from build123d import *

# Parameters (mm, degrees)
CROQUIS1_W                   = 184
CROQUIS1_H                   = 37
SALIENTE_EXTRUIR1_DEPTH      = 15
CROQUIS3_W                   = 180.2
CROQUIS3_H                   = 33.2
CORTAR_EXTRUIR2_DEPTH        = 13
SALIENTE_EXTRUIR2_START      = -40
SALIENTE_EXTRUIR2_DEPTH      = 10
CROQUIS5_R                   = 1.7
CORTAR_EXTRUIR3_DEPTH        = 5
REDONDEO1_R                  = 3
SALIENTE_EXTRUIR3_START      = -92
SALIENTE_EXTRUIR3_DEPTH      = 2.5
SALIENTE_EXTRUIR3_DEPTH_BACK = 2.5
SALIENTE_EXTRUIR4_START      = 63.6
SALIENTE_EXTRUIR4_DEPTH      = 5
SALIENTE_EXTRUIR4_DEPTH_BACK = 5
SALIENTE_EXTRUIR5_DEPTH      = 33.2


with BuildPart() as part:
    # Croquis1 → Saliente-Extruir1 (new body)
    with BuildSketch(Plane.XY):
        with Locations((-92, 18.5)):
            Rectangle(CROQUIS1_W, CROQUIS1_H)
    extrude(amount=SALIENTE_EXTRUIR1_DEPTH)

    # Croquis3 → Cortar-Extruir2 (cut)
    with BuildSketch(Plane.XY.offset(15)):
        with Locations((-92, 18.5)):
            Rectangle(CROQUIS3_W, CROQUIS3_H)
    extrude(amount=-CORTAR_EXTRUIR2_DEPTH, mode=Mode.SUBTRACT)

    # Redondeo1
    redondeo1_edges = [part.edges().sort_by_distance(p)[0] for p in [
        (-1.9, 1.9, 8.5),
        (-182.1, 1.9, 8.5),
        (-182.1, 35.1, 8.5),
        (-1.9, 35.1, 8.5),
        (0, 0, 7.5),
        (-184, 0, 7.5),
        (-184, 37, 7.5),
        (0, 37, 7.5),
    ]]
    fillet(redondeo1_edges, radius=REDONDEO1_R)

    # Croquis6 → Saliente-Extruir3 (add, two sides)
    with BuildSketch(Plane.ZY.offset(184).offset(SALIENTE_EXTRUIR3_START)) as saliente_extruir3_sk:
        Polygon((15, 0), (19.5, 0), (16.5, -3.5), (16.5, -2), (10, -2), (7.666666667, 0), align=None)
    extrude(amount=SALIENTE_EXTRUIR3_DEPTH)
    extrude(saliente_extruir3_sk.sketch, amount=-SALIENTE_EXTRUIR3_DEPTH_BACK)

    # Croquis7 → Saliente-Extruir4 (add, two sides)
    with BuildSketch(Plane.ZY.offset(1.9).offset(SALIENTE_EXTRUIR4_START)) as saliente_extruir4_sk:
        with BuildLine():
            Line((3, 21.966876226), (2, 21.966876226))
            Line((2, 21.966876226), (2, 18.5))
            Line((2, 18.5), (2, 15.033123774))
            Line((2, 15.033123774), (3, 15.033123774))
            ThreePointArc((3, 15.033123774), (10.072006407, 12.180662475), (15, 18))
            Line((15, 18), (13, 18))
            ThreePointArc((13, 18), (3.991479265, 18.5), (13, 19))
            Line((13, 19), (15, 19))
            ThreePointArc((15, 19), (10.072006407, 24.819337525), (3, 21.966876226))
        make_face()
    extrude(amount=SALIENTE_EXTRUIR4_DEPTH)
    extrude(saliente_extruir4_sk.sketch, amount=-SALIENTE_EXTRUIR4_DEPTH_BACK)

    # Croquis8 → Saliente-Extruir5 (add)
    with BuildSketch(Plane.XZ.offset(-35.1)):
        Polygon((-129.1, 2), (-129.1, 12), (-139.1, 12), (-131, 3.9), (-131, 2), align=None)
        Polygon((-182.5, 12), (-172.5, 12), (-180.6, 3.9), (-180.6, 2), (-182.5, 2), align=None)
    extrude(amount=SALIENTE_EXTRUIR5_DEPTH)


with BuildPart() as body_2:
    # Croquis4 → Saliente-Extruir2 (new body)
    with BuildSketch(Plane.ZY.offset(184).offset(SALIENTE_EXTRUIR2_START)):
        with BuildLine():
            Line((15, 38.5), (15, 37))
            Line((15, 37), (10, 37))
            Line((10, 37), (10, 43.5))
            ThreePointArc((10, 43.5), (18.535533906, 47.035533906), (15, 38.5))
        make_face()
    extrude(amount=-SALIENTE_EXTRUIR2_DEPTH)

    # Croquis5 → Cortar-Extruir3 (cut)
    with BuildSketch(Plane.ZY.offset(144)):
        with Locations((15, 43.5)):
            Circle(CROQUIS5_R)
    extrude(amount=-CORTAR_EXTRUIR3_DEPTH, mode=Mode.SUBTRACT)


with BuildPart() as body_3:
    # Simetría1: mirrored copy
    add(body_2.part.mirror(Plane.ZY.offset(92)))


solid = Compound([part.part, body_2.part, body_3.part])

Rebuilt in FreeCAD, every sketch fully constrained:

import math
import FreeCAD as App
import Part
import Sketcher


def edges_at(feature, points):
    """Names of the edges that pass closest to the given points."""
    edges = feature.Shape.Edges
    near = lambda p: min(range(len(edges)), key=lambda i: edges[i].distToShape(Part.Vertex(*p))[0])
    return sorted({f"Edge{near(p) + 1}" for p in points})

doc = App.newDocument("Part")
body = doc.addObject("PartDesign::Body", "Body")

# Sketch on XY plane
sketch1 = body.newObject("Sketcher::SketchObject", "Sketch")
sketch1.AttachmentSupport = (doc.getObject("XY_Plane"), [""])
sketch1.MapMode = "FlatFace"
sketch1.addGeometry([
    Part.LineSegment(App.Vector(-184, 37, 0), App.Vector(-184, 0, 0)),
    Part.LineSegment(App.Vector(-184, 0, 0), App.Vector(0, 0, 0)),
    Part.LineSegment(App.Vector(0, 0, 0), App.Vector(0, 37, 0)),
    Part.LineSegment(App.Vector(0, 37, 0), App.Vector(-184, 37, 0)),
], False)
sketch1.addConstraint([
    Sketcher.Constraint("Coincident", 0, 2, 1, 1),
    Sketcher.Constraint("Coincident", 1, 2, 2, 1),
    Sketcher.Constraint("Coincident", 2, 2, 3, 1),
    Sketcher.Constraint("Coincident", 3, 2, 0, 1),
    Sketcher.Constraint("Vertical", 0),
    Sketcher.Constraint("Horizontal", 1),
    Sketcher.Constraint("Vertical", 2),
    Sketcher.Constraint("Horizontal", 3),
    Sketcher.Constraint("Coincident", 1, 2, -1, 1),
    Sketcher.Constraint("DistanceX", 1, 1, 1, 2, 184.0),
    Sketcher.Constraint("DistanceY", 0, 2, 0, 1, 37.0),
])
pad1 = body.newObject("PartDesign::Pad", "Pad")
pad1.Profile = sketch1
pad1.Length = 15

# Sketch on XY plane
sketch2 = body.newObject("Sketcher::SketchObject", "Sketch001")
sketch2.AttachmentSupport = (doc.getObject("XY_Plane"), [""])
sketch2.MapMode = "FlatFace"
sketch2.AttachmentOffset = App.Placement(App.Vector(0, 0, 15), App.Rotation())
sketch2.addGeometry([
    Part.LineSegment(App.Vector(-182, 35, 0), App.Vector(-182, 2, 0)),
    Part.LineSegment(App.Vector(-182, 2, 0), App.Vector(-2, 2, 0)),
    Part.LineSegment(App.Vector(-2, 2, 0), App.Vector(-2, 35, 0)),
    Part.LineSegment(App.Vector(-2, 35, 0), App.Vector(-182, 35, 0)),
], False)
sketch2.addConstraint([
    Sketcher.Constraint("Coincident", 0, 2, 1, 1),
    Sketcher.Constraint("Coincident", 1, 2, 2, 1),
    Sketcher.Constraint("Coincident", 2, 2, 3, 1),
    Sketcher.Constraint("Coincident", 3, 2, 0, 1),
    Sketcher.Constraint("Vertical", 0),
    Sketcher.Constraint("Horizontal", 1),
    Sketcher.Constraint("Vertical", 2),
    Sketcher.Constraint("Horizontal", 3),
    Sketcher.Constraint("DistanceX", 1, 1, 1, 2, 180.2),
    Sketcher.Constraint("DistanceY", 0, 2, 0, 1, 33.2),
    Sketcher.Constraint("DistanceX", 0, 2, -1, 1, 182.1),
    Sketcher.Constraint("DistanceY", -1, 1, 0, 2, 1.9),
])
pocket1 = body.newObject("PartDesign::Pocket", "Pocket")
pocket1.Profile = sketch2
pocket1.Length = 13
doc.recompute()

fillet = body.newObject("PartDesign::Fillet", "Fillet")
fillet.Base = (pocket1, edges_at(pocket1, [
    (-1.9, 1.9, 8.5),
    (-182.1, 1.9, 8.5),
    (-182.1, 35.1, 8.5),
    (-1.9, 35.1, 8.5),
    (0, 0, 7.5),
    (-184, 0, 7.5),
    (-184, 37, 7.5),
    (0, 37, 7.5),
]))
fillet.Radius = 3

# Sketch on YZ plane
sketch3 = body.newObject("Sketcher::SketchObject", "Sketch002")
sketch3.AttachmentSupport = (doc.getObject("YZ_Plane"), [""])
sketch3.MapMode = "FlatFace"
sketch3.AttachmentOffset = App.Placement(App.Vector(0, 0, -92), App.Rotation())
sketch3.addGeometry([
    Part.LineSegment(App.Vector(0, 19.5, 0), App.Vector(0, 7.7, 0)),  # 0
    Part.LineSegment(App.Vector(0, 7.7, 0), App.Vector(-2, 10, 0)),  # 1
    Part.LineSegment(App.Vector(-2, 10, 0), App.Vector(-2, 16.5, 0)),  # 2
    Part.LineSegment(App.Vector(-2, 16.5, 0), App.Vector(-3.5, 16.5, 0)),  # 3
    Part.LineSegment(App.Vector(-3.5, 16.5, 0), App.Vector(0, 19.5, 0)),  # 4
], False)
sketch3.addConstraint([
    Sketcher.Constraint("Coincident", 0, 2, 1, 1),
    Sketcher.Constraint("Coincident", 1, 2, 2, 1),
    Sketcher.Constraint("Coincident", 2, 2, 3, 1),
    Sketcher.Constraint("Coincident", 3, 2, 4, 1),
    Sketcher.Constraint("Coincident", 4, 2, 0, 1),
    Sketcher.Constraint("Vertical", 0),
    Sketcher.Constraint("Vertical", 2),
    Sketcher.Constraint("Horizontal", 3),
    Sketcher.Constraint("PointOnObject", 0, 2, -2),
    Sketcher.Constraint("Perpendicular", 1, 4),
    Sketcher.Constraint("DistanceX", 3, 2, 3, 1, 1.5),
    Sketcher.Constraint("DistanceY", 2, 1, 2, 2, 6.5),
    Sketcher.Constraint("DistanceX", 1, 2, -1, 1, 2.0),
    Sketcher.Constraint("DistanceY", -1, 1, 1, 2, 10.0),
    Sketcher.Constraint("DistanceY", 2, 2, 4, 2, 3.0),
])
pad2 = body.newObject("PartDesign::Pad", "Pad001")
pad2.Profile = sketch3
pad2.Type = "TwoLengths"
pad2.Length = 2.5
pad2.Length2 = 2.5
pad2.Reversed = True

# Sketch on YZ plane
sketch4 = body.newObject("Sketcher::SketchObject", "Sketch003")
sketch4.AttachmentSupport = (doc.getObject("YZ_Plane"), [""])
sketch4.MapMode = "FlatFace"
sketch4.AttachmentOffset = App.Placement(App.Vector(0, 0, -65.5), App.Rotation())
sketch4.addGeometry([
    Part.LineSegment(App.Vector(22, 3, 0), App.Vector(22, 2, 0)),  # 0
    Part.LineSegment(App.Vector(22, 2, 0), App.Vector(15, 2, 0)),  # 1
    Part.LineSegment(App.Vector(15, 2, 0), App.Vector(15, 3, 0)),  # 2
    Part.ArcOfCircle(Part.Circle(App.Vector(18.5, 8.5, 0), App.Vector(0, 0, 1), 6.5), math.radians(94), math.radians(238)),  # 3
    Part.LineSegment(App.Vector(18, 15, 0), App.Vector(18, 13, 0)),  # 4
    Part.ArcOfCircle(Part.Circle(App.Vector(18.5, 8.5, 0), App.Vector(0, 0, 1), 4.5), math.radians(96), math.radians(444)),  # 5
    Part.LineSegment(App.Vector(19, 13, 0), App.Vector(19, 15, 0)),  # 6
    Part.ArcOfCircle(Part.Circle(App.Vector(18.5, 8.5, 0), App.Vector(0, 0, 1), 6.5), math.radians(-58), math.radians(86)),  # 7
], False)
sketch4.addConstraint([
    Sketcher.Constraint("Coincident", 0, 2, 1, 1),
    Sketcher.Constraint("Coincident", 1, 2, 2, 1),
    Sketcher.Constraint("Coincident", 2, 2, 3, 2),
    Sketcher.Constraint("Coincident", 3, 1, 4, 1),
    Sketcher.Constraint("Coincident", 4, 2, 5, 1),
    Sketcher.Constraint("Coincident", 5, 2, 6, 1),
    Sketcher.Constraint("Coincident", 6, 2, 7, 2),
    Sketcher.Constraint("Coincident", 7, 1, 0, 1),
    Sketcher.Constraint("Vertical", 0),
    Sketcher.Constraint("Horizontal", 1),
    Sketcher.Constraint("Vertical", 2),
    Sketcher.Constraint("Vertical", 4),
    Sketcher.Constraint("Vertical", 6),
    Sketcher.Constraint("Coincident", 5, 3, 3, 3),
    Sketcher.Constraint("Coincident", 7, 3, 3, 3),
    Sketcher.Constraint("Equal", 3, 7),
    Sketcher.Constraint("Horizontal", 4, 2, 5, 2),
    Sketcher.Constraint("Horizontal", 2, 2, 7, 1),
    Sketcher.Constraint("DistanceY", 0, 2, 0, 1, 1.0),
    Sketcher.Constraint("DistanceY", 4, 2, 4, 1, 2.0),
    Sketcher.Constraint("DistanceY", -1, 1, 0, 2, 2.0),
    Sketcher.Constraint("DistanceX", -1, 1, 3, 1, 18.0),
    Sketcher.Constraint("DistanceY", -1, 1, 3, 1, 15.0),
    Sketcher.Constraint("DistanceX", -1, 1, 5, 2, 19.0),
    Sketcher.Constraint("Radius", 3, 6.509615),
])
pad3 = body.newObject("PartDesign::Pad", "Pad002")
pad3.Profile = sketch4
pad3.Type = "TwoLengths"
pad3.Length = 5
pad3.Length2 = 5
pad3.Reversed = True

# Sketch on XZ plane
sketch5 = body.newObject("Sketcher::SketchObject", "Sketch004")
sketch5.AttachmentSupport = (doc.getObject("XZ_Plane"), [""])
sketch5.MapMode = "FlatFace"
sketch5.AttachmentOffset = App.Placement(App.Vector(0, 0, -35.1), App.Rotation())
sketch5.addGeometry([
    Part.LineSegment(App.Vector(-129.1, 2, 0), App.Vector(-129.1, 12, 0)),  # 0
    Part.LineSegment(App.Vector(-129.1, 12, 0), App.Vector(-139.1, 12, 0)),  # 1
    Part.LineSegment(App.Vector(-139.1, 12, 0), App.Vector(-131, 3.9, 0)),  # 2
    Part.LineSegment(App.Vector(-131, 3.9, 0), App.Vector(-131, 2, 0)),  # 3
    Part.LineSegment(App.Vector(-131, 2, 0), App.Vector(-129.1, 2, 0)),  # 4
    Part.LineSegment(App.Vector(-172.5, 12, 0), App.Vector(-182.5, 12, 0)),  # 5
    Part.LineSegment(App.Vector(-182.5, 12, 0), App.Vector(-182.5, 2, 0)),  # 6
    Part.LineSegment(App.Vector(-182.5, 2, 0), App.Vector(-180.6, 2, 0)),  # 7
    Part.LineSegment(App.Vector(-180.6, 2, 0), App.Vector(-180.6, 3.9, 0)),  # 8
    Part.LineSegment(App.Vector(-180.6, 3.9, 0), App.Vector(-172.5, 12, 0)),  # 9
], False)
sketch5.addConstraint([
    Sketcher.Constraint("Coincident", 0, 2, 1, 1),
    Sketcher.Constraint("Coincident", 1, 2, 2, 1),
    Sketcher.Constraint("Coincident", 2, 2, 3, 1),
    Sketcher.Constraint("Coincident", 3, 2, 4, 1),
    Sketcher.Constraint("Coincident", 4, 2, 0, 1),
    Sketcher.Constraint("Coincident", 5, 2, 6, 1),
    Sketcher.Constraint("Coincident", 6, 2, 7, 1),
    Sketcher.Constraint("Coincident", 7, 2, 8, 1),
    Sketcher.Constraint("Coincident", 8, 2, 9, 1),
    Sketcher.Constraint("Coincident", 9, 2, 5, 1),
    Sketcher.Constraint("Vertical", 0),
    Sketcher.Constraint("Horizontal", 1),
    Sketcher.Constraint("Vertical", 3),
    Sketcher.Constraint("Horizontal", 4),
    Sketcher.Constraint("Horizontal", 5),
    Sketcher.Constraint("Vertical", 6),
    Sketcher.Constraint("Horizontal", 7),
    Sketcher.Constraint("Vertical", 8),
    Sketcher.Constraint("Perpendicular", 2, 9),
    Sketcher.Constraint("Horizontal", 1, 2, 5, 2),
    Sketcher.Constraint("Horizontal", 4, 2, 6, 2),
    Sketcher.Constraint("Horizontal", 2, 2, 8, 2),
    Sketcher.Constraint("Equal", 1, 5),
    Sketcher.Constraint("Equal", 4, 7),
    Sketcher.Constraint("Equal", 5, 0),
    Sketcher.Constraint("DistanceX", 1, 2, 1, 1, 10.0),
    Sketcher.Constraint("DistanceX", 4, 1, 4, 2, 1.9),
    Sketcher.Constraint("DistanceY", -1, 1, 0, 2, 12.0),
    Sketcher.Constraint("DistanceX", 2, 2, -1, 1, 131.0),
    Sketcher.Constraint("DistanceX", 5, 2, -1, 1, 182.5),
])
pad4 = body.newObject("PartDesign::Pad", "Pad003")
pad4.Profile = sketch5
pad4.Length = 33.2
body2 = doc.addObject("PartDesign::Body", "Body001")

# Sketch on YZ plane
sketch6 = body2.newObject("Sketcher::SketchObject", "Sketch005")
sketch6.AttachmentSupport = (doc.getObject("YZ_Plane001"), [""])
sketch6.MapMode = "FlatFace"
sketch6.AttachmentOffset = App.Placement(App.Vector(0, 0, -144), App.Rotation())
sketch6.addGeometry([
    Part.LineSegment(App.Vector(37, 15, 0), App.Vector(38.5, 15, 0)),
    Part.ArcOfCircle(Part.Circle(App.Vector(43.5, 15, 0), App.Vector(0, 0, 1), 5), math.radians(-90), math.radians(180)),
    Part.LineSegment(App.Vector(43.5, 10, 0), App.Vector(37, 10, 0)),
    Part.LineSegment(App.Vector(37, 10, 0), App.Vector(37, 15, 0)),
], False)
sketch6.addConstraint([
    Sketcher.Constraint("Coincident", 0, 2, 1, 2),
    Sketcher.Constraint("Tangent", 1, 1, 2, 1),
    Sketcher.Constraint("Coincident", 2, 2, 3, 1),
    Sketcher.Constraint("Coincident", 3, 2, 0, 1),
    Sketcher.Constraint("Horizontal", 0),
    Sketcher.Constraint("Horizontal", 2),
    Sketcher.Constraint("Vertical", 3),
    Sketcher.Constraint("Horizontal", 1, 3, 0, 2),
    Sketcher.Constraint("Radius", 1, 5.0),
    Sketcher.Constraint("DistanceX", 0, 1, 0, 2, 1.5),
    Sketcher.Constraint("DistanceY", -1, 1, 1, 3, 15.0),
    Sketcher.Constraint("DistanceX", -1, 1, 2, 2, 37.0),
])
pad5 = body2.newObject("PartDesign::Pad", "Pad004")
pad5.Profile = sketch6
pad5.Length = 10

# Sketch on YZ plane
sketch7 = body2.newObject("Sketcher::SketchObject", "Sketch006")
sketch7.AttachmentSupport = (doc.getObject("YZ_Plane001"), [""])
sketch7.MapMode = "FlatFace"
sketch7.AttachmentOffset = App.Placement(App.Vector(0, 0, -144), App.Rotation())
sketch7.addGeometry(Part.Circle(App.Vector(43.5, 15, 0), App.Vector(0, 0, 1), 1.7), False)
sketch7.addConstraint([
    Sketcher.Constraint("Diameter", 0, 3.4),
    Sketcher.Constraint("DistanceY", -1, 1, 0, 3, 15.0),
    Sketcher.Constraint("DistanceX", -1, 1, 0, 3, 43.5),
])
pocket2 = body2.newObject("PartDesign::Pocket", "Pocket001")
pocket2.Profile = sketch7
pocket2.Length = 5
pocket2.Reversed = True
body3 = doc.addObject("PartDesign::Body", "Body002")
doc.recompute()

mirroring = doc.addObject("Part::Mirroring", "Mirroring")
mirroring.Source = body2
mirroring.Base = App.Vector(-92, 0, 0)
mirroring.Normal = App.Vector(-1, 0, 0)
body3.BaseFeature = mirroring
doc.recompute()
mirroring.Visibility = False

doc.recompute()
